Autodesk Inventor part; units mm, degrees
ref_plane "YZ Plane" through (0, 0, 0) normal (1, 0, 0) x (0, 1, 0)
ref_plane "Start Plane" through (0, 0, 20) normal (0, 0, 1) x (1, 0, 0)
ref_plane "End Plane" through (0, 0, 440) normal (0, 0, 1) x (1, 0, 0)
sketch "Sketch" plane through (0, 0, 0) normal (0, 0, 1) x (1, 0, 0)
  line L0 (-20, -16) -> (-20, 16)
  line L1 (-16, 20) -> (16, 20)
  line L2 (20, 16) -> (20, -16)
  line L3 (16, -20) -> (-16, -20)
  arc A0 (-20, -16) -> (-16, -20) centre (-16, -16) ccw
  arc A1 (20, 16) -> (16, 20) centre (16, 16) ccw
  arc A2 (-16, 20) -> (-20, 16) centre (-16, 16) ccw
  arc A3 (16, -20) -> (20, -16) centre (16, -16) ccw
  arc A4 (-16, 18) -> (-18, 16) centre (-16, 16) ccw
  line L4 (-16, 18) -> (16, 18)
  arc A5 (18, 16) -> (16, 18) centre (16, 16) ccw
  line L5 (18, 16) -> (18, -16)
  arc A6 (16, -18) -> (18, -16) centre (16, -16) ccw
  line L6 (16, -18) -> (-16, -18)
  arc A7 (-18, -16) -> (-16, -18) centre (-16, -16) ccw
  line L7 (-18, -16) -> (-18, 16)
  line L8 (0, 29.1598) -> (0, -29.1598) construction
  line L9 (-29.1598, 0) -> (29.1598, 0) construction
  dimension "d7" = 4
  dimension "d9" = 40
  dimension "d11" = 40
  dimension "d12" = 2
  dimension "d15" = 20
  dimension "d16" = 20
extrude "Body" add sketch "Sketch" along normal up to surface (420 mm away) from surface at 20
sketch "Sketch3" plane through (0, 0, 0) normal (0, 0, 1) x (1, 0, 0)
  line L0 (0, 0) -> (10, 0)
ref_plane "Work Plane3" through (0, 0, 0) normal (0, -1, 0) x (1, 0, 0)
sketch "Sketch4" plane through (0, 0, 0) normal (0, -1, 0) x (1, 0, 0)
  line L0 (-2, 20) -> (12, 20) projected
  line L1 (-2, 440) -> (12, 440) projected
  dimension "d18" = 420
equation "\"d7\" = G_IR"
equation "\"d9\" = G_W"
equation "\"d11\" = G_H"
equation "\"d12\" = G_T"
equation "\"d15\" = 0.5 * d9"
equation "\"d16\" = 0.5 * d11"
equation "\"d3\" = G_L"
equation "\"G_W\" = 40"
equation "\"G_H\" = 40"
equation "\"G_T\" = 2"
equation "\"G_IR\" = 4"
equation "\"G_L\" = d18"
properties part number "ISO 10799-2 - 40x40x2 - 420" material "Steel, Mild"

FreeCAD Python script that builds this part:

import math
import FreeCAD as App
import Part
import Sketcher
Q = App.Units.Quantity

doc = App.newDocument("Part")
body = doc.addObject("PartDesign::Body", "Body")

# Sketch on XY plane
sketch1 = doc.addObject("Sketcher::SketchObject", "Sketch")
body.addObject(sketch1)
sketch1.AttachmentSupport = (doc.XY_Plane, [""])
sketch1.MapMode = "FlatFace"
sketch1.AttachmentOffset = App.Placement(App.Vector(0, 0, 20), App.Rotation())
sketch1.addGeometry([
    Part.LineSegment(App.Vector(-20, 16, 0), App.Vector(-20, -16, 0)),  # 0
    Part.ArcOfCircle(Part.Circle(App.Vector(-16, -16, 0), App.Vector(0, 0, 1), 4), math.radians(180), math.radians(270)),  # 1
    Part.LineSegment(App.Vector(-16, -20, 0), App.Vector(16, -20, 0)),  # 2
    Part.ArcOfCircle(Part.Circle(App.Vector(16, -16, 0), App.Vector(0, 0, 1), 4), math.radians(-90), math.radians(0)),  # 3
    Part.LineSegment(App.Vector(20, -16, 0), App.Vector(20, 16, 0)),  # 4
    Part.ArcOfCircle(Part.Circle(App.Vector(16, 16, 0), App.Vector(0, 0, 1), 4), math.radians(0), math.radians(90)),  # 5
    Part.LineSegment(App.Vector(16, 20, 0), App.Vector(-16, 20, 0)),  # 6
    Part.ArcOfCircle(Part.Circle(App.Vector(-16, 16, 0), App.Vector(0, 0, 1), 4), math.radians(90), math.radians(180)),  # 7
    Part.ArcOfCircle(Part.Circle(App.Vector(-16, 16, 0), App.Vector(0, 0, 1), 2), math.radians(90), math.radians(180)),  # 8
    Part.LineSegment(App.Vector(-16, 18, 0), App.Vector(16, 18, 0)),  # 9
    Part.ArcOfCircle(Part.Circle(App.Vector(16, 16, 0), App.Vector(0, 0, 1), 2), math.radians(0), math.radians(90)),  # 10
    Part.LineSegment(App.Vector(18, 16, 0), App.Vector(18, -16, 0)),  # 11
    Part.ArcOfCircle(Part.Circle(App.Vector(16, -16, 0), App.Vector(0, 0, 1), 2), math.radians(-90), math.radians(0)),  # 12
    Part.LineSegment(App.Vector(16, -18, 0), App.Vector(-16, -18, 0)),  # 13
    Part.ArcOfCircle(Part.Circle(App.Vector(-16, -16, 0), App.Vector(0, 0, 1), 2), math.radians(180), math.radians(270)),  # 14
    Part.LineSegment(App.Vector(-18, -16, 0), App.Vector(-18, 16, 0)),  # 15
], False)
sketch1.addConstraint([
    Sketcher.Constraint("Tangent", 0, 2, 1, 1),
    Sketcher.Constraint("Tangent", 1, 2, 2, 1),
    Sketcher.Constraint("Tangent", 2, 2, 3, 1),
    Sketcher.Constraint("Tangent", 3, 2, 4, 1),
    Sketcher.Constraint("Tangent", 4, 2, 5, 1),
    Sketcher.Constraint("Tangent", 5, 2, 6, 1),
    Sketcher.Constraint("Tangent", 6, 2, 7, 1),
    Sketcher.Constraint("Tangent", 7, 2, 0, 1),
    Sketcher.Constraint("Tangent", 8, 1, 9, 1),
    Sketcher.Constraint("Tangent", 9, 2, 10, 2),
    Sketcher.Constraint("Tangent", 10, 1, 11, 1),
    Sketcher.Constraint("Tangent", 11, 2, 12, 2),
    Sketcher.Constraint("Tangent", 12, 1, 13, 1),
    Sketcher.Constraint("Tangent", 13, 2, 14, 2),
    Sketcher.Constraint("Tangent", 14, 1, 15, 1),
    Sketcher.Constraint("Tangent", 15, 2, 8, 2),
    Sketcher.Constraint("Vertical", 0),
    Sketcher.Constraint("Horizontal", 2),
    Sketcher.Constraint("Vertical", 4),
    Sketcher.Constraint("Horizontal", 6),
    Sketcher.Constraint("Horizontal", 9),
    Sketcher.Constraint("Vertical", 11),
    Sketcher.Constraint("Horizontal", 13),
    Sketcher.Constraint("Vertical", 15),
    Sketcher.Constraint("Coincident", 8, 3, 7, 3),
    Sketcher.Constraint("Coincident", 10, 3, 5, 3),
    Sketcher.Constraint("Coincident", 12, 3, 3, 3),
    Sketcher.Constraint("Equal", 1, 3),
    Sketcher.Constraint("Equal", 3, 5),
    Sketcher.Constraint("Equal", 5, 7),
    Sketcher.Constraint("Equal", 12, 14),
    Sketcher.Constraint("Symmetric", 1, 3, 5, 3, -1, 1),
    Sketcher.Constraint("Equal", 13, 0),
    Sketcher.Constraint("Radius", 1, Q("4 mm")),
    Sketcher.Constraint("Radius", 8, Q("2 mm")),
    Sketcher.Constraint("DistanceX", 0, 2, -1, 1, Q("20 mm")),
])
pad1 = doc.addObject("PartDesign::Pad", "Pad")
body.addObject(pad1)
pad1.Profile = sketch1
pad1.Length = 420

doc.recompute()
